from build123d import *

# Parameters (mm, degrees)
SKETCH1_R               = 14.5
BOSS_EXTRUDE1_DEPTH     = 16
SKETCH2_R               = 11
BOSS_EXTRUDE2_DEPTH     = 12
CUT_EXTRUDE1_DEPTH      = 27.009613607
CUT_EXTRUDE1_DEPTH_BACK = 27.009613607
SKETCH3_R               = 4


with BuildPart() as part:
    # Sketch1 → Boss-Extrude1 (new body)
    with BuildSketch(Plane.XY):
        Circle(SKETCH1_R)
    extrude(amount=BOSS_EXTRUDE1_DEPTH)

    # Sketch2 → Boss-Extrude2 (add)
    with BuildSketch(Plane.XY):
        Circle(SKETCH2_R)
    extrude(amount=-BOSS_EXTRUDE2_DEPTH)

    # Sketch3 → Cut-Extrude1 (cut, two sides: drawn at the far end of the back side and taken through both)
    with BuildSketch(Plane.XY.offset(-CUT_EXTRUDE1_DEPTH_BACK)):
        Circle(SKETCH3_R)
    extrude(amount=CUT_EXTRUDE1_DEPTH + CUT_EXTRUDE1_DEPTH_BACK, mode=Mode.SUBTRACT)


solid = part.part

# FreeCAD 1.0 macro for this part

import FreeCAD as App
import Part
import Sketcher
Q = App.Units.Quantity

doc = App.newDocument("Part")
body = doc.addObject("PartDesign::Body", "Body")

sketch1 = body.newObject("Sketcher::SketchObject", "Sketch")
sketch1.AttachmentSupport = (doc.getObject("XY_Plane"), [""])
sketch1.MapMode = "FlatFace"
sketch1.addGeometry(Part.Circle(App.Vector(0, 0, 0), App.Vector(0, 0, 1), 14.5), False)
sketch1.addConstraint([
    Sketcher.Constraint("Coincident", 0, 3, -1, 1),
    Sketcher.Constraint("Diameter", 0, Q("29 mm")),
])
pad1 = body.newObject("PartDesign::Pad", "Pad")
pad1.Profile = sketch1
pad1.Length = 16

sketch2 = body.newObject("Sketcher::SketchObject", "Sketch001")
sketch2.AttachmentSupport = (doc.getObject("XY_Plane"), [""])
sketch2.MapMode = "FlatFace"
sketch2.addGeometry(Part.Circle(App.Vector(0, 0, 0), App.Vector(0, 0, 1), 11), False)
sketch2.addConstraint([
    Sketcher.Constraint("Coincident", 0, 3, -1, 1),
    Sketcher.Constraint("Diameter", 0, Q("22 mm")),
])
pad2 = body.newObject("PartDesign::Pad", "Pad001")
pad2.Profile = sketch2
pad2.Length = 12
pad2.Reversed = True

sketch3 = body.newObject("Sketcher::SketchObject", "Sketch002")
sketch3.AttachmentSupport = (doc.getObject("XY_Plane"), [""])
sketch3.MapMode = "FlatFace"
sketch3.addGeometry(Part.Circle(App.Vector(0, 0, 0), App.Vector(0, 0, 1), 4), False)
sketch3.addConstraint([
    Sketcher.Constraint("Coincident", 0, 3, -1, 1),
    Sketcher.Constraint("Diameter", 0, Q("8 mm")),
])
pocket1 = body.newObject("PartDesign::Pocket", "Pocket")
pocket1.Profile = sketch3
pocket1.Type = "ThroughAll"
pocket1.Midplane = True

doc.recompute()
